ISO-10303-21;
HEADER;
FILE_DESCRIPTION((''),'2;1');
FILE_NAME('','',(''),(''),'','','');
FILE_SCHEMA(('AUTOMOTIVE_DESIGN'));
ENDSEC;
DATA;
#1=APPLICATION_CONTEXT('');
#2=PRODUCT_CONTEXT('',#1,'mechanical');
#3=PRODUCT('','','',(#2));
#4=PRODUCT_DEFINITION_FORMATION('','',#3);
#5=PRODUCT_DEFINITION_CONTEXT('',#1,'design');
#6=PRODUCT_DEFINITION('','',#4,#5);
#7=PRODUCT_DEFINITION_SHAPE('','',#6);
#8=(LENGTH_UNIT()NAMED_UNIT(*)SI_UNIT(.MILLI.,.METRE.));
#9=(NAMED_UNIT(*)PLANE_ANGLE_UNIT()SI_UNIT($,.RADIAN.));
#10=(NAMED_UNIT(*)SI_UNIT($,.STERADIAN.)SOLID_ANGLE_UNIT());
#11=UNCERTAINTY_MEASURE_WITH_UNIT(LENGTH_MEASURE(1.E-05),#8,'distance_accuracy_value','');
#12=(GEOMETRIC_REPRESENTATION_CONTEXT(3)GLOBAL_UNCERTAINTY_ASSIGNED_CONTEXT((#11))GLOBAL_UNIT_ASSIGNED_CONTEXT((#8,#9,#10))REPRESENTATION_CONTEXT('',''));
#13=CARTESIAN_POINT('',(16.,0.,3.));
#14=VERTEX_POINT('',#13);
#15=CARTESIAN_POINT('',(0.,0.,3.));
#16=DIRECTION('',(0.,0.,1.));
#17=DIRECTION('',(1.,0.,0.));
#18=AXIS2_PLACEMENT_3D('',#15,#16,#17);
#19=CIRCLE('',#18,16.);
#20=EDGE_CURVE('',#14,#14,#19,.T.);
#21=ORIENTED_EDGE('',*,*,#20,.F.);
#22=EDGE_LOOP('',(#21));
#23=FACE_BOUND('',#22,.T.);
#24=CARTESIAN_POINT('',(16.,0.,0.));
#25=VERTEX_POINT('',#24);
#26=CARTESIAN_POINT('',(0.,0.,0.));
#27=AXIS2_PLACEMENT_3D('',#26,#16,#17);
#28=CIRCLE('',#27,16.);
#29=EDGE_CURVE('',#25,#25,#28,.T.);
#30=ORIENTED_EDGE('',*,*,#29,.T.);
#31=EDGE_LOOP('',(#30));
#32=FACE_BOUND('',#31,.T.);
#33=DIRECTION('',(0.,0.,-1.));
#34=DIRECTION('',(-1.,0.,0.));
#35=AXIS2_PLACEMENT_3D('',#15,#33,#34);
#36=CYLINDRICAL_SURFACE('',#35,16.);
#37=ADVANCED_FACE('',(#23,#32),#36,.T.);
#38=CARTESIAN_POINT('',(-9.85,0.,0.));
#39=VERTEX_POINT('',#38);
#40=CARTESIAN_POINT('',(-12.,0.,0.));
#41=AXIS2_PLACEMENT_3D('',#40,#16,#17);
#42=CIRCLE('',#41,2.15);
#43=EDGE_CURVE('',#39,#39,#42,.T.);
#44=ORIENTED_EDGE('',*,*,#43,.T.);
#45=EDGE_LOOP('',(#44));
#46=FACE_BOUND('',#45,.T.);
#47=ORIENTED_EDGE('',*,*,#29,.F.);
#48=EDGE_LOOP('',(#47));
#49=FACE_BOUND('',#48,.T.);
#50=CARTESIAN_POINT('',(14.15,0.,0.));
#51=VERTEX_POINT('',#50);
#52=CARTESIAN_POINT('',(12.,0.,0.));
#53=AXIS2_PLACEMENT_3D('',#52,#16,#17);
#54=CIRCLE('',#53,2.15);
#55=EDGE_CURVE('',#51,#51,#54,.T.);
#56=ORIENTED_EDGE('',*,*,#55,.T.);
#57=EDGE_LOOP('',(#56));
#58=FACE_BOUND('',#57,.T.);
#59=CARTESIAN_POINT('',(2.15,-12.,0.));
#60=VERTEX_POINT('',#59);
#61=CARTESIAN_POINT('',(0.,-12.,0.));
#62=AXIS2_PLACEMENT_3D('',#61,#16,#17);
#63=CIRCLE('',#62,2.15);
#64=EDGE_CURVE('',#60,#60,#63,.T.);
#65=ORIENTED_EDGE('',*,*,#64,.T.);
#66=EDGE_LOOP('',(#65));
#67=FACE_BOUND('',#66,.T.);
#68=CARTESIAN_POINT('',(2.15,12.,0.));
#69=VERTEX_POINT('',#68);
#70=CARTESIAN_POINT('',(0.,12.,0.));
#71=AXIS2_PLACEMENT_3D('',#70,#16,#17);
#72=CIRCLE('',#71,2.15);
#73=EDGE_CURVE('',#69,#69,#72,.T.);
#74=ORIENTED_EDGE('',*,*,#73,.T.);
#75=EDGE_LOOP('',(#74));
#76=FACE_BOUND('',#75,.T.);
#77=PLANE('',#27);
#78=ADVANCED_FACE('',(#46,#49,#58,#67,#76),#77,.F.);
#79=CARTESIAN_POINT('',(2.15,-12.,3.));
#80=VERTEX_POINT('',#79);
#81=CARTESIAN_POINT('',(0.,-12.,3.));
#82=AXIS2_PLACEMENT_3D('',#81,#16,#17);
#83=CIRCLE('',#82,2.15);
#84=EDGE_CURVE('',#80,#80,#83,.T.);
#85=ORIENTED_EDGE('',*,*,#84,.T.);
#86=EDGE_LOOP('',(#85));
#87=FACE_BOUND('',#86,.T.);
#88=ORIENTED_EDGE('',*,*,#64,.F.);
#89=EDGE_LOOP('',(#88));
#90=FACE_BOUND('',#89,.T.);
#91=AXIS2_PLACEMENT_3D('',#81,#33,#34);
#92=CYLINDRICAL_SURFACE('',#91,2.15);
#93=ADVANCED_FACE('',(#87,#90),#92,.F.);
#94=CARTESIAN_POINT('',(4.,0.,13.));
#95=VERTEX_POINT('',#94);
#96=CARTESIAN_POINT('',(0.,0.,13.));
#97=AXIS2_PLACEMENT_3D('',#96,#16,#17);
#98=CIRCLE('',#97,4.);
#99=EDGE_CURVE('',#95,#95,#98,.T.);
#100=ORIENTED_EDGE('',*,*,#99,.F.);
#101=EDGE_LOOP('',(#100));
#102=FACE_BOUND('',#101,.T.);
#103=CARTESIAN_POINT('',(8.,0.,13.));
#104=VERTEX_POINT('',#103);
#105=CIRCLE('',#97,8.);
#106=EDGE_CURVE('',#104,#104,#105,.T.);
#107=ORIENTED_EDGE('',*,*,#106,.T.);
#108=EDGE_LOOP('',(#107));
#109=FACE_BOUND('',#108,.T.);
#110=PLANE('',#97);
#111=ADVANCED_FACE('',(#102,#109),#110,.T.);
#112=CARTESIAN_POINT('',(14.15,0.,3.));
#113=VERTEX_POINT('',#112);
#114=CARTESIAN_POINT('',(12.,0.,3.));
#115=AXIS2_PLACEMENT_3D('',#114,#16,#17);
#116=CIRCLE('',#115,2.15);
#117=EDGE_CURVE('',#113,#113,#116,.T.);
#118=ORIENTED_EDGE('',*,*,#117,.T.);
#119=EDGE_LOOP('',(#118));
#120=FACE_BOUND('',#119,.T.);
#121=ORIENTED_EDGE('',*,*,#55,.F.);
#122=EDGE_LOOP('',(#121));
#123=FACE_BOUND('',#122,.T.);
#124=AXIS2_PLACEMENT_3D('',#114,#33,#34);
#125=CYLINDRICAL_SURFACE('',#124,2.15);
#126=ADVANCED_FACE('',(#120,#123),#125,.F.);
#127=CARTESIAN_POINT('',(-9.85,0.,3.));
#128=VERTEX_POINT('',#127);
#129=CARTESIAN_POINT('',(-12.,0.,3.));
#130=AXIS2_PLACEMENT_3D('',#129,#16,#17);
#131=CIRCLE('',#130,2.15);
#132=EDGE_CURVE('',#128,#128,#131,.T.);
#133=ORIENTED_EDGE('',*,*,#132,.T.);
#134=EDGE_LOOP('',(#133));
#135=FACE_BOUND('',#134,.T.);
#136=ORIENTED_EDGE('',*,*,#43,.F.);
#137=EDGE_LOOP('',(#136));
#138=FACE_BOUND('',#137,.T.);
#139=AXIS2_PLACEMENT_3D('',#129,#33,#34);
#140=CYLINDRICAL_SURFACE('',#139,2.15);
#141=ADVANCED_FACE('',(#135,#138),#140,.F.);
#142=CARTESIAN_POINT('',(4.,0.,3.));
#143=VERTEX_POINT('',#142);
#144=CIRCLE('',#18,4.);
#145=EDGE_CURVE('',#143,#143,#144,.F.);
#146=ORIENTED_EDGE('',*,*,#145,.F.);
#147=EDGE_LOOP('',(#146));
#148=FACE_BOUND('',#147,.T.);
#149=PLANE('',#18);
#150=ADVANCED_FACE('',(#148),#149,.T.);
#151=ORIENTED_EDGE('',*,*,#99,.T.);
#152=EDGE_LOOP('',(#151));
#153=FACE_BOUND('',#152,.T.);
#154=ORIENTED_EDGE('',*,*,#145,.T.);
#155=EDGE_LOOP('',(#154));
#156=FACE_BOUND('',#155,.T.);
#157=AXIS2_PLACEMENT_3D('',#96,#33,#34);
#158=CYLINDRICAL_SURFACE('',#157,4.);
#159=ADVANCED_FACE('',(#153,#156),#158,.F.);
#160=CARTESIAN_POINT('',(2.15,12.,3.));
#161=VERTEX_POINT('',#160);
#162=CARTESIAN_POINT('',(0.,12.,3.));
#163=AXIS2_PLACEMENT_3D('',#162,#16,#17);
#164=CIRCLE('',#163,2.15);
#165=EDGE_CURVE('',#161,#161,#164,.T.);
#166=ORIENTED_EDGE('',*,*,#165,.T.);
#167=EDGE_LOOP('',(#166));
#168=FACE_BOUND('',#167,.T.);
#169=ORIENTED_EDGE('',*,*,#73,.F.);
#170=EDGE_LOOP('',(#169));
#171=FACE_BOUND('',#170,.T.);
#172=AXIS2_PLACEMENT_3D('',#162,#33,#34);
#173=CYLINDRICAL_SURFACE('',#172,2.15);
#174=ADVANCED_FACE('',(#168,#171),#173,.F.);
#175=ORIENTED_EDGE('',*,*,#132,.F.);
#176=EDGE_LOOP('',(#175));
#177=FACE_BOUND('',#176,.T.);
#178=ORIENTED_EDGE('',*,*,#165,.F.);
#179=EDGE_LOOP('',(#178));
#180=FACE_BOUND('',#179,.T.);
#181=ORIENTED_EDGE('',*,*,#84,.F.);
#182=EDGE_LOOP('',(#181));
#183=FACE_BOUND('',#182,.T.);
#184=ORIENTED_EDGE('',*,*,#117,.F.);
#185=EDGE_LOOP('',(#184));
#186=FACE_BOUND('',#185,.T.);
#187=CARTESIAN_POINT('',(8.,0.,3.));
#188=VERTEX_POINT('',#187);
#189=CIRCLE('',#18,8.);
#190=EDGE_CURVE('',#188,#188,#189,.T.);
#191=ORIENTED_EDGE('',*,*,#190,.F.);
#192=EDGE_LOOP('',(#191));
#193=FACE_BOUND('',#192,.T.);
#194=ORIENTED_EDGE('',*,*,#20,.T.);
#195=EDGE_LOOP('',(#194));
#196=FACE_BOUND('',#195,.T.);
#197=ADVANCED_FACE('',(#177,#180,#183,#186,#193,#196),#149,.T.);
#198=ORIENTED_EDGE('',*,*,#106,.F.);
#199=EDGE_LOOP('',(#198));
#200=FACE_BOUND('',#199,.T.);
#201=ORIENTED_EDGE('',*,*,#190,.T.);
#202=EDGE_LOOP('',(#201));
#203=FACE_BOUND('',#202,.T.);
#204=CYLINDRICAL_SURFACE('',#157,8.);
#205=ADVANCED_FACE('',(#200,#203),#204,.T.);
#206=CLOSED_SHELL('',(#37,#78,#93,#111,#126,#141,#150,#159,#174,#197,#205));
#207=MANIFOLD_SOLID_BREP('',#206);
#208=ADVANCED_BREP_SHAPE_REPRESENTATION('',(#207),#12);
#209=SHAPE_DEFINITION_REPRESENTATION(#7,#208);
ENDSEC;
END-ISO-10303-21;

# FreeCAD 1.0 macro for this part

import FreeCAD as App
import Part
import Sketcher

V = App.Vector
Q = App.Units.Quantity

doc = App.newDocument("Part")
body = doc.addObject("PartDesign::Body", "Body")

# Sketch on XY plane
sketch1 = body.newObject("Sketcher::SketchObject", "Sketch")
sketch1.AttachmentSupport = (doc.getObject("XY_Plane"), [""])
sketch1.MapMode = "FlatFace"
sketch1.addGeometry(Part.Circle(V(0, 0, 0), V(0, 0, 1), 16), False)
sketch1.addGeometry(Part.Circle(V(0, -12, 0), V(0, 0, 1), 2.1), False)
sketch1.addGeometry(Part.Circle(V(-12, 0, 0), V(0, 0, 1), 2.1), False)
sketch1.addGeometry(Part.Circle(V(0, 12, 0), V(0, 0, 1), 2.1), False)
sketch1.addGeometry(Part.Circle(V(12, 0, 0), V(0, 0, 1), 2.1), False)
sketch1.addConstraint(Sketcher.Constraint("Coincident", 0, 3, -1, 1))
sketch1.addConstraint(Sketcher.Constraint("Equal", 1, 2))
sketch1.addConstraint(Sketcher.Constraint("Equal", 2, 3))
sketch1.addConstraint(Sketcher.Constraint("Equal", 3, 4))
sketch1.addConstraint(Sketcher.Constraint("Symmetric", 1, 3, 3, 3, -1, 1))
sketch1.addConstraint(Sketcher.Constraint("Symmetric", 2, 3, 4, 3, -1, 1))
sketch1.addConstraint(Sketcher.Constraint("PointOnObject", 1, 3, -2))
sketch1.addConstraint(Sketcher.Constraint("PointOnObject", 2, 3, -1))
sketch1.addConstraint(Sketcher.Constraint("Diameter", 0, Q("32 mm")))
sketch1.addConstraint(Sketcher.Constraint("Diameter", 1, Q("4.3 mm")))
sketch1.addConstraint(Sketcher.Constraint("DistanceY", 1, 3, -1, 1, Q("12 mm")))
sketch1.addConstraint(Sketcher.Constraint("DistanceX", 2, 3, -1, 1, Q("12 mm")))
pad1 = body.newObject("PartDesign::Pad", "Pad")
pad1.Profile = sketch1
pad1.Length = 3

# Sketch on XY plane
sketch2 = body.newObject("Sketcher::SketchObject", "Sketch001")
sketch2.AttachmentSupport = (doc.getObject("XY_Plane"), [""])
sketch2.MapMode = "FlatFace"
sketch2.AttachmentOffset = App.Placement(V(0, 0, 3), App.Rotation())
sketch2.addGeometry(Part.Circle(V(0, 0, 0), V(0, 0, 1), 8), False)
sketch2.addGeometry(Part.Circle(V(0, 0, 0), V(0, 0, 1), 4), False)
sketch2.addConstraint(Sketcher.Constraint("Coincident", 0, 3, -1, 1))
sketch2.addConstraint(Sketcher.Constraint("Coincident", 1, 3, -1, 1))
sketch2.addConstraint(Sketcher.Constraint("Diameter", 0, Q("16 mm")))
sketch2.addConstraint(Sketcher.Constraint("Diameter", 1, Q("8 mm")))
pad2 = body.newObject("PartDesign::Pad", "Pad001")
pad2.Profile = sketch2
pad2.Length = 10

doc.recompute()
